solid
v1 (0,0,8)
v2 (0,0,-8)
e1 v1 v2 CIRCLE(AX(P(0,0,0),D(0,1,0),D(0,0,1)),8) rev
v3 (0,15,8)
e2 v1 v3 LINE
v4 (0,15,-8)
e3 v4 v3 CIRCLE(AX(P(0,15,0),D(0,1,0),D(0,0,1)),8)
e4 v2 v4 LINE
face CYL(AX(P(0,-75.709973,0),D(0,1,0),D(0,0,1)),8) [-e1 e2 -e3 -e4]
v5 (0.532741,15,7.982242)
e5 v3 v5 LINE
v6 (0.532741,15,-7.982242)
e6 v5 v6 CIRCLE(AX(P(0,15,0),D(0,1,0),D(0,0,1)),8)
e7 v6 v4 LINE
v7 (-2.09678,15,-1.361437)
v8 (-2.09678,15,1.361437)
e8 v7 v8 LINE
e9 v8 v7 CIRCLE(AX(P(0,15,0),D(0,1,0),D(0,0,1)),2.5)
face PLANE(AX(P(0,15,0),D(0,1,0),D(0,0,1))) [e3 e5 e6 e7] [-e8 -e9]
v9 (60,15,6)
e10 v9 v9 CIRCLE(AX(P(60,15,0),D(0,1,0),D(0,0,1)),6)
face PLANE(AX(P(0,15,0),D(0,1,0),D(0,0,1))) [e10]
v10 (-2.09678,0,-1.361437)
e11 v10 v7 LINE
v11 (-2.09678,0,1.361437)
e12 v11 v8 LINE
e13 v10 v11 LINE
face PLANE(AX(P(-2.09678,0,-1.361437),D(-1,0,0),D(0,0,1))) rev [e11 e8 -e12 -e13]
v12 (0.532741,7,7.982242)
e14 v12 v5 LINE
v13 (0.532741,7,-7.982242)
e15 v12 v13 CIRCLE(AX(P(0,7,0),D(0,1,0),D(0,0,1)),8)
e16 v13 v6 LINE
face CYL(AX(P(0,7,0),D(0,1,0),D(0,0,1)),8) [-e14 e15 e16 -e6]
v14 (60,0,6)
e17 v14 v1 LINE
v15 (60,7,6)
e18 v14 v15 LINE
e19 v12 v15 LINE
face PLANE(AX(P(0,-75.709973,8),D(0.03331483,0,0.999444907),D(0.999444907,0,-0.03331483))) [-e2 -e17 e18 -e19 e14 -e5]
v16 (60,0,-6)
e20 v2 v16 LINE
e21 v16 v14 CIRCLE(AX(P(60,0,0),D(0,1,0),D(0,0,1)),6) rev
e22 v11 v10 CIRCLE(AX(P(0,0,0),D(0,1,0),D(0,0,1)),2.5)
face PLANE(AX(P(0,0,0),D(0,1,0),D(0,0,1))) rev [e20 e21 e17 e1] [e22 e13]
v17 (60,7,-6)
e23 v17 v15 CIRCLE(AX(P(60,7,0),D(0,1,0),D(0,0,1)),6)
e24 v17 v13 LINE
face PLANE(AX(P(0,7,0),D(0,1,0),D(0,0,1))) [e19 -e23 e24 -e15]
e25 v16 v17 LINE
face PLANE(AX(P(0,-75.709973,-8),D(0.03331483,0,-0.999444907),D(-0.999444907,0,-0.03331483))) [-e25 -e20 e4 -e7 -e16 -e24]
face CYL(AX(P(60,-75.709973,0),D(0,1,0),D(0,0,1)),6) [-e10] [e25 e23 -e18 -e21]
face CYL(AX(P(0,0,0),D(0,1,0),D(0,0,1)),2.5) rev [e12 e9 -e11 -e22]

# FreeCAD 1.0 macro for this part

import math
import FreeCAD as App
import Part
import Sketcher
from FreeCAD import Vector
Q = App.Units.Quantity

doc = App.newDocument("Part")
body = doc.addObject("PartDesign::Body", "Body")

# Sketch on XZ plane
sketch1 = doc.addObject("Sketcher::SketchObject", "Sketch")
body.addObject(sketch1)
sketch1.AttachmentSupport = (doc.XZ_Plane, [""])
sketch1.MapMode = "FlatFace"
sketch1.addGeometry(Part.Circle(Vector(0, 0, 0), Vector(0, 0, 1), 5), False)
sketch1.addConstraint(Sketcher.Constraint("Coincident", 0, 3, -1, 1))
sketch1.addConstraint(Sketcher.Constraint("Diameter", 0, Q("10 mm")))
pad1 = doc.addObject("PartDesign::Pad", "Pad")
body.addObject(pad1)
pad1.Profile = sketch1
pad1.Length = 15
pad1.Reversed = True

# Sketch on XZ plane
sketch2 = doc.addObject("Sketcher::SketchObject", "Sketch001")
body.addObject(sketch2)
sketch2.AttachmentSupport = (doc.XZ_Plane, [""])
sketch2.MapMode = "FlatFace"
sketch2.AttachmentOffset = App.Placement(Vector(0, 0, -15), App.Rotation())
sketch2.addGeometry(Part.LineSegment(Vector(-2.1, -1.4, 0), Vector(-2.1, 1.4, 0)), False)
sketch2.addGeometry(Part.ArcOfCircle(Part.Circle(Vector(0, 0, 0), Vector(0, 0, 1), 2.5), math.radians(-147), math.radians(147)), False)
sketch2.addConstraint(Sketcher.Constraint("Coincident", 0, 1, 1, 1))
sketch2.addConstraint(Sketcher.Constraint("Coincident", 1, 2, 0, 2))
sketch2.addConstraint(Sketcher.Constraint("Vertical", 0))
sketch2.addConstraint(Sketcher.Constraint("Coincident", 1, 3, -1, 1))
sketch2.addConstraint(Sketcher.Constraint("Radius", 1, Q("2.5 mm")))
sketch2.addConstraint(Sketcher.Constraint("DistanceY", 0, 1, 0, 2, Q("2.722875 mm")))
pocket1 = doc.addObject("PartDesign::Pocket", "Pocket")
body.addObject(pocket1)
pocket1.Profile = sketch2
pocket1.Type = "ThroughAll"
pocket1.Reversed = True

# Sketch on XZ plane
sketch3 = doc.addObject("Sketcher::SketchObject", "Sketch002")
body.addObject(sketch3)
sketch3.AttachmentSupport = (doc.XZ_Plane, [""])
sketch3.MapMode = "FlatFace"
sketch3.AttachmentOffset = App.Placement(Vector(0, 0, -15), App.Rotation())
sketch3.addGeometry(Part.LineSegment(Vector(60, -6, 0), Vector(0, -8, 0)), False)
sketch3.addGeometry(Part.ArcOfCircle(Part.Circle(Vector(0, 0, 0), Vector(0, 0, 1), 8), math.radians(90), math.radians(270)), False)
sketch3.addGeometry(Part.LineSegment(Vector(0, 8, 0), Vector(60, 6, 0)), False)
sketch3.addGeometry(Part.ArcOfCircle(Part.Circle(Vector(60, 0, 0), Vector(0, 0, 1), 6), math.radians(-90), math.radians(90)), False)
sketch3.addGeometry(Part.Circle(Vector(0, 0, 0), Vector(0, 0, 1), 3.6), False)
sketch3.addConstraint(Sketcher.Constraint("Coincident", 0, 2, 1, 2))
sketch3.addConstraint(Sketcher.Constraint("Coincident", 1, 1, 2, 1))
sketch3.addConstraint(Sketcher.Constraint("Coincident", 2, 2, 3, 2))
sketch3.addConstraint(Sketcher.Constraint("Coincident", 3, 1, 0, 1))
sketch3.addConstraint(Sketcher.Constraint("Coincident", 1, 3, -1, 1))
sketch3.addConstraint(Sketcher.Constraint("Coincident", 4, 3, -1, 1))
sketch3.addConstraint(Sketcher.Constraint("Symmetric", 2, 2, 3, 1, -1))
sketch3.addConstraint(Sketcher.Constraint("PointOnObject", 0, 2, -2))
sketch3.addConstraint(Sketcher.Constraint("PointOnObject", 1, 1, -2))
sketch3.addConstraint(Sketcher.Constraint("Vertical", 3, 3, 2, 2))
sketch3.addConstraint(Sketcher.Constraint("Radius", 1, Q("8 mm")))
sketch3.addConstraint(Sketcher.Constraint("Radius", 3, Q("6 mm")))
sketch3.addConstraint(Sketcher.Constraint("DistanceX", -1, 1, 3, 3, Q("60 mm")))
sketch3.addConstraint(Sketcher.Constraint("Diameter", 4, Q("7.116304 mm")))
pad2 = doc.addObject("PartDesign::Pad", "Pad001")
body.addObject(pad2)
pad2.Profile = sketch3
pad2.Length = 15

# Sketch on XZ plane
sketch4 = doc.addObject("Sketcher::SketchObject", "Sketch003")
body.addObject(sketch4)
sketch4.AttachmentSupport = (doc.XZ_Plane, [""])
sketch4.MapMode = "FlatFace"
sketch4.AttachmentOffset = App.Placement(Vector(0, 0, -15), App.Rotation())
sketch4.addGeometry(Part.LineSegment(Vector(60, -6, 0), Vector(1, -8, 0)), False)
sketch4.addGeometry(Part.ArcOfCircle(Part.Circle(Vector(0, 0, 0), Vector(0, 0, 1), 8), math.radians(-86), math.radians(86)), False)
sketch4.addGeometry(Part.LineSegment(Vector(1, 8, 0), Vector(60, 6, 0)), False)
sketch4.addGeometry(Part.ArcOfCircle(Part.Circle(Vector(60, 0, 0), Vector(0, 0, 1), 6), math.radians(90), math.radians(270)), False)
sketch4.addConstraint(Sketcher.Constraint("Coincident", 0, 2, 1, 1))
sketch4.addConstraint(Sketcher.Constraint("Coincident", 1, 2, 2, 1))
sketch4.addConstraint(Sketcher.Constraint("Coincident", 2, 2, 3, 1))
sketch4.addConstraint(Sketcher.Constraint("Coincident", 3, 2, 0, 1))
sketch4.addConstraint(Sketcher.Constraint("Coincident", 1, 3, -1, 1))
sketch4.addConstraint(Sketcher.Constraint("Symmetric", 2, 2, 3, 2, -1))
sketch4.addConstraint(Sketcher.Constraint("Vertical", 0, 2, 1, 2))
sketch4.addConstraint(Sketcher.Constraint("Vertical", 3, 3, 2, 2))
sketch4.addConstraint(Sketcher.Constraint("Radius", 1, Q("8 mm")))
sketch4.addConstraint(Sketcher.Constraint("Radius", 3, Q("6 mm")))
sketch4.addConstraint(Sketcher.Constraint("DistanceX", -1, 1, 3, 3, Q("60 mm")))
sketch4.addConstraint(Sketcher.Constraint("DistanceX", -1, 1, 0, 2, Q("0.532741 mm")))
pocket2 = doc.addObject("PartDesign::Pocket", "Pocket001")
body.addObject(pocket2)
pocket2.Profile = sketch4
pocket2.Length = 8
pocket2.Reversed = True

doc.recompute()
